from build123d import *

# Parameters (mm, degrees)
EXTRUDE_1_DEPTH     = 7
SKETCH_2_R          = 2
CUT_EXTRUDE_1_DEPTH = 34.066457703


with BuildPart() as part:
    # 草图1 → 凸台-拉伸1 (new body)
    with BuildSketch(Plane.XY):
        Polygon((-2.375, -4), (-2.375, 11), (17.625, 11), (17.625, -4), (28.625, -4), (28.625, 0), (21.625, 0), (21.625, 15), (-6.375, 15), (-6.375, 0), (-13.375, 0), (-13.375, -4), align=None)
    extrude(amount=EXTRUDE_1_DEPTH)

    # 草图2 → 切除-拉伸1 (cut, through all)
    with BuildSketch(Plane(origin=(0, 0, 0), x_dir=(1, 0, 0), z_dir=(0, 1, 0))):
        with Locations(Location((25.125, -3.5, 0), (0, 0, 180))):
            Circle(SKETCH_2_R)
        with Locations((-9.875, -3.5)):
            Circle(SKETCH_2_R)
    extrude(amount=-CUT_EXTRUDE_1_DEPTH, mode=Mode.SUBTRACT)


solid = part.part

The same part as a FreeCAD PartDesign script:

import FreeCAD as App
import Part
import Sketcher

V = App.Vector
Q = App.Units.Quantity

doc = App.newDocument("Part")
body = doc.addObject("PartDesign::Body", "Body")

sketch1 = doc.addObject("Sketcher::SketchObject", "Sketch")
body.addObject(sketch1)
sketch1.AttachmentSupport = (doc.XY_Plane, [""])
sketch1.MapMode = "FlatFace"
sketch1.addGeometry([
    Part.LineSegment(V(-2.375, -4, 0), V(-2.375, 11, 0)),
    Part.LineSegment(V(-2.375, 11, 0), V(17.625, 11, 0)),
    Part.LineSegment(V(17.625, 11, 0), V(17.625, -4, 0)),
    Part.LineSegment(V(17.625, -4, 0), V(28.625, -4, 0)),
    Part.LineSegment(V(28.625, -4, 0), V(28.625, 0, 0)),
    Part.LineSegment(V(28.625, 0, 0), V(21.625, 0, 0)),
    Part.LineSegment(V(21.625, 0, 0), V(21.625, 15, 0)),
    Part.LineSegment(V(21.625, 15, 0), V(-6.375, 15, 0)),
    Part.LineSegment(V(-6.375, 15, 0), V(-6.375, 0, 0)),
    Part.LineSegment(V(-6.375, 0, 0), V(-13.375, 0, 0)),
    Part.LineSegment(V(-13.375, 0, 0), V(-13.375, -4, 0)),
    Part.LineSegment(V(-13.375, -4, 0), V(-2.375, -4, 0)),
], False)
sketch1.addConstraint([
    Sketcher.Constraint("Coincident", 0, 2, 1, 1),
    Sketcher.Constraint("Coincident", 1, 2, 2, 1),
    Sketcher.Constraint("Coincident", 2, 2, 3, 1),
    Sketcher.Constraint("Coincident", 3, 2, 4, 1),
    Sketcher.Constraint("Coincident", 4, 2, 5, 1),
    Sketcher.Constraint("Coincident", 5, 2, 6, 1),
    Sketcher.Constraint("Coincident", 6, 2, 7, 1),
    Sketcher.Constraint("Coincident", 7, 2, 8, 1),
    Sketcher.Constraint("Coincident", 8, 2, 9, 1),
    Sketcher.Constraint("Coincident", 9, 2, 10, 1),
    Sketcher.Constraint("Coincident", 10, 2, 11, 1),
    Sketcher.Constraint("Coincident", 11, 2, 0, 1),
    Sketcher.Constraint("Vertical", 0),
    Sketcher.Constraint("Horizontal", 1),
    Sketcher.Constraint("Vertical", 2),
    Sketcher.Constraint("Horizontal", 3),
    Sketcher.Constraint("Vertical", 4),
    Sketcher.Constraint("Horizontal", 5),
    Sketcher.Constraint("Vertical", 6),
    Sketcher.Constraint("Horizontal", 7),
    Sketcher.Constraint("Vertical", 8),
    Sketcher.Constraint("Horizontal", 9),
    Sketcher.Constraint("Vertical", 10),
    Sketcher.Constraint("Horizontal", 11),
    Sketcher.Constraint("PointOnObject", 4, 2, -1),
    Sketcher.Constraint("PointOnObject", 8, 2, -1),
    Sketcher.Constraint("Horizontal", 3, 2, 10, 2),
    Sketcher.Constraint("Equal", 5, 9),
    Sketcher.Constraint("Equal", 3, 11),
    Sketcher.Constraint("Equal", 2, 6),
    Sketcher.Constraint("DistanceX", 1, 1, 1, 2, Q("20 mm")),
    Sketcher.Constraint("DistanceX", 3, 1, 3, 2, Q("11 mm")),
    Sketcher.Constraint("DistanceX", 5, 2, 5, 1, Q("7 mm")),
    Sketcher.Constraint("DistanceY", 0, 1, 0, 2, Q("15 mm")),
    Sketcher.Constraint("DistanceY", 4, 1, 4, 2, Q("4 mm")),
    Sketcher.Constraint("DistanceX", 0, 2, -1, 1, Q("2.375 mm")),
])
pad1 = doc.addObject("PartDesign::Pad", "Pad")
body.addObject(pad1)
pad1.Profile = sketch1
pad1.Length = 7

sketch2 = doc.addObject("Sketcher::SketchObject", "Sketch001")
body.addObject(sketch2)
sketch2.AttachmentSupport = (doc.XZ_Plane, [""])
sketch2.MapMode = "FlatFace"
sketch2.addGeometry([
    Part.Circle(V(25.125, 3.5, 0), V(0, 0, 1), 2),
    Part.Circle(V(-9.875, 3.5, 0), V(0, 0, 1), 2),
], False)
sketch2.addConstraint([
    Sketcher.Constraint("Equal", 0, 1),
    Sketcher.Constraint("Horizontal", 0, 3, 1, 3),
    Sketcher.Constraint("Diameter", 0, Q("4 mm")),
    Sketcher.Constraint("DistanceX", 1, 3, 0, 3, Q("35 mm")),
    Sketcher.Constraint("DistanceY", -1, 1, 0, 3, Q("3.5 mm")),
    Sketcher.Constraint("DistanceX", -1, 1, 0, 3, Q("25.125 mm")),
])
pocket1 = doc.addObject("PartDesign::Pocket", "Pocket")
body.addObject(pocket1)
pocket1.Profile = sketch2
pocket1.Type = "ThroughAll"
pocket1.Reversed = True

doc.recompute()
